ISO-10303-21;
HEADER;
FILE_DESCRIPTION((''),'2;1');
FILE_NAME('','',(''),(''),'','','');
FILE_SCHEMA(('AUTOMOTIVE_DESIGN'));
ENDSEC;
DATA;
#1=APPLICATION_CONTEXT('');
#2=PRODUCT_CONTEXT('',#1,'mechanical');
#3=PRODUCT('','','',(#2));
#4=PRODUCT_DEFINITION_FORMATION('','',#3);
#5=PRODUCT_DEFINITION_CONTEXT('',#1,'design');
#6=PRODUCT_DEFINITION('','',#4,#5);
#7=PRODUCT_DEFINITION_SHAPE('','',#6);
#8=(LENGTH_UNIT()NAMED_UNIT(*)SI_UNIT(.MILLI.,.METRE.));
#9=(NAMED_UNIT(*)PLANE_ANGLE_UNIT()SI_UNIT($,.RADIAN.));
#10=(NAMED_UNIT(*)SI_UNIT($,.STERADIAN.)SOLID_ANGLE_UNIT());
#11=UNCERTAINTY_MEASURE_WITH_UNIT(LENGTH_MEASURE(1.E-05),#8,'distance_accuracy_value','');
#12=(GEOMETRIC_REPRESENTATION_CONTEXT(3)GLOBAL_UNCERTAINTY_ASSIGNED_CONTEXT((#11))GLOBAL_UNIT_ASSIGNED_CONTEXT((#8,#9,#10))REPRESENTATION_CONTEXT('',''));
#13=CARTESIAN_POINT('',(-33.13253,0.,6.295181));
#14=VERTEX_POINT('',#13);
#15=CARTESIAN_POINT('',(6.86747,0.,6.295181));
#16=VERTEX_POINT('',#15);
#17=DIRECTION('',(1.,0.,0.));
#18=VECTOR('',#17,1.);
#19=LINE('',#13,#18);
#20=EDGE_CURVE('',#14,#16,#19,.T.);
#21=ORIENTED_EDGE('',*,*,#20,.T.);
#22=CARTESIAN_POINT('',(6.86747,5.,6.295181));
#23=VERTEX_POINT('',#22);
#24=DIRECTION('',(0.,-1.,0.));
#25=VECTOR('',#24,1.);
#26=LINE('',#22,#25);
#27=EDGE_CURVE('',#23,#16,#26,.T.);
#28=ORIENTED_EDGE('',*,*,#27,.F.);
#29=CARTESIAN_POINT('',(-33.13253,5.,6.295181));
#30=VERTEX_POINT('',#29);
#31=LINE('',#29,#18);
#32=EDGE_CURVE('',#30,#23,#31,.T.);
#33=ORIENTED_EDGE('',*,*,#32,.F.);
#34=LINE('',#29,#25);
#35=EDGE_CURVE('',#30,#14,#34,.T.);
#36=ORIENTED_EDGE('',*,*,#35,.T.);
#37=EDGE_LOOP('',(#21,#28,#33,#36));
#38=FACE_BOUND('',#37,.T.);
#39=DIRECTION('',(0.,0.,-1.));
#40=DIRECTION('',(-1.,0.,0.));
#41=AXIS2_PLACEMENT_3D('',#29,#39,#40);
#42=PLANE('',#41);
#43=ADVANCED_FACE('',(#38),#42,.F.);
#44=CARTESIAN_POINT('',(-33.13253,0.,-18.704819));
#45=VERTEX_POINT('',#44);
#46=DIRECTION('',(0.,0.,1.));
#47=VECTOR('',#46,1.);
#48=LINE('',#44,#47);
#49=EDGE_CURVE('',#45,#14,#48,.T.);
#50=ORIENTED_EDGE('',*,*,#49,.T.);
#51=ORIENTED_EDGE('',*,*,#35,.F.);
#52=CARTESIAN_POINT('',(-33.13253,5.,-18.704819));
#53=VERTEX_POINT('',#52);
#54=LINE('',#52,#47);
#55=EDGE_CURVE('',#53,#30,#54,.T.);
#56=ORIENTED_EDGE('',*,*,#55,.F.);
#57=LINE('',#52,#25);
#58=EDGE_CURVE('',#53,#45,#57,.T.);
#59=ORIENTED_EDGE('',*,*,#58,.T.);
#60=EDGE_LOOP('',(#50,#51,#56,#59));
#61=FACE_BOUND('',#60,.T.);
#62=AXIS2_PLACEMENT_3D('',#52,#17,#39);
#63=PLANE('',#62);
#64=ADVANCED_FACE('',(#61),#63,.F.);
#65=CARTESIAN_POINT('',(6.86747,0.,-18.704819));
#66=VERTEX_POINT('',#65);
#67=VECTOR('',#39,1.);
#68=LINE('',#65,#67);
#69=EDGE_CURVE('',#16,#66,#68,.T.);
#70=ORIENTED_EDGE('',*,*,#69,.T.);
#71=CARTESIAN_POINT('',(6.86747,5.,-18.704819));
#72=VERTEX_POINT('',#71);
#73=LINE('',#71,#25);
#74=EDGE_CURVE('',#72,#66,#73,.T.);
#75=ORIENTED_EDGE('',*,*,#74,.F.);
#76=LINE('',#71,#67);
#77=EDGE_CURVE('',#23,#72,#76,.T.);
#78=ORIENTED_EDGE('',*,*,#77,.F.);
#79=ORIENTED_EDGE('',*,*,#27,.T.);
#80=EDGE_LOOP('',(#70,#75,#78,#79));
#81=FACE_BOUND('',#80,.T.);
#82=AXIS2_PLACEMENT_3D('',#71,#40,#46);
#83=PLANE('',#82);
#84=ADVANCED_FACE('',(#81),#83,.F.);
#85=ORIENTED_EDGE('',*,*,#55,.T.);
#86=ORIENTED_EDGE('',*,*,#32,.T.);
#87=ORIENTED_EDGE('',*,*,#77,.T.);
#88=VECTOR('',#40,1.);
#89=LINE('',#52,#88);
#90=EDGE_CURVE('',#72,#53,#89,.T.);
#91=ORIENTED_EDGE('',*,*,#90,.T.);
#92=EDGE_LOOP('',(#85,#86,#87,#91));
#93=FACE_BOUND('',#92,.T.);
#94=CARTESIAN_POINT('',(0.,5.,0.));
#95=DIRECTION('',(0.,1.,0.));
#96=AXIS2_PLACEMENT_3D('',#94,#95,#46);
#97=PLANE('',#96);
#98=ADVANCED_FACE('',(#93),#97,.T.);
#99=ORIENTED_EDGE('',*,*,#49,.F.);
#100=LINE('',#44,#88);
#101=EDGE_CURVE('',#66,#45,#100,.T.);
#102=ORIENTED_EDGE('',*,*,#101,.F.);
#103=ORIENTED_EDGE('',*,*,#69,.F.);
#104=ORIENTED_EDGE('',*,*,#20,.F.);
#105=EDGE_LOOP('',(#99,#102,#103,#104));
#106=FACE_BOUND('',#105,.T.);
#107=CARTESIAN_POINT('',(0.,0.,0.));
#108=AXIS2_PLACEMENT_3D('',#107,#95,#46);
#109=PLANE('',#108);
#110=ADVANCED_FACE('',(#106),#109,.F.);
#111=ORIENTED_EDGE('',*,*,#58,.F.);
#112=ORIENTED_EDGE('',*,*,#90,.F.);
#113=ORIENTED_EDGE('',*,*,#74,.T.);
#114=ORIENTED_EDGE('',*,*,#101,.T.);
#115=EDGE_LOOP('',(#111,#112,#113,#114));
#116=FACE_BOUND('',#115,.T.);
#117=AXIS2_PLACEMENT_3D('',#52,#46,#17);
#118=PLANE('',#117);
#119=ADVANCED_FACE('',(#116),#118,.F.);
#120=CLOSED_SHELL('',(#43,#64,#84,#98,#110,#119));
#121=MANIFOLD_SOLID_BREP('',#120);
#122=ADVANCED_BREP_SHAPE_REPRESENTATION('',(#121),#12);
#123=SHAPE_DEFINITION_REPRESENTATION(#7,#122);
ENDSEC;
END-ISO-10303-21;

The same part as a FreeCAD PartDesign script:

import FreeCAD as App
import Part
import Sketcher

V = App.Vector

doc = App.newDocument("Part")
body = doc.addObject("PartDesign::Body", "Body")

# Sketch on XZ plane
sketch1 = body.newObject("Sketcher::SketchObject", "Sketch")
sketch1.AttachmentSupport = (doc.getObject("XZ_Plane"), [""])
sketch1.MapMode = "FlatFace"
sketch1.addGeometry([
    Part.LineSegment(V(-33, -19, 0), V(-33, 6, 0)),
    Part.LineSegment(V(-33, 6, 0), V(7, 6, 0)),
    Part.LineSegment(V(7, 6, 0), V(7, -19, 0)),
    Part.LineSegment(V(7, -19, 0), V(-33, -19, 0)),
], False)
sketch1.addConstraint([
    Sketcher.Constraint("Coincident", 0, 2, 1, 1),
    Sketcher.Constraint("Coincident", 1, 2, 2, 1),
    Sketcher.Constraint("Coincident", 2, 2, 3, 1),
    Sketcher.Constraint("Coincident", 3, 2, 0, 1),
    Sketcher.Constraint("Vertical", 0),
    Sketcher.Constraint("Horizontal", 1),
    Sketcher.Constraint("Vertical", 2),
    Sketcher.Constraint("Horizontal", 3),
    Sketcher.Constraint("DistanceX", 1, 1, 1, 2, 40.0),
    Sketcher.Constraint("DistanceY", 0, 1, 0, 2, 25.0),
    Sketcher.Constraint("DistanceX", 0, 2, -1, 1, 33.13253),
    Sketcher.Constraint("DistanceY", -1, 1, 0, 2, 6.295181),
])
pad1 = body.newObject("PartDesign::Pad", "Pad")
pad1.Profile = sketch1
pad1.Length = 5
pad1.Reversed = True

doc.recompute()
